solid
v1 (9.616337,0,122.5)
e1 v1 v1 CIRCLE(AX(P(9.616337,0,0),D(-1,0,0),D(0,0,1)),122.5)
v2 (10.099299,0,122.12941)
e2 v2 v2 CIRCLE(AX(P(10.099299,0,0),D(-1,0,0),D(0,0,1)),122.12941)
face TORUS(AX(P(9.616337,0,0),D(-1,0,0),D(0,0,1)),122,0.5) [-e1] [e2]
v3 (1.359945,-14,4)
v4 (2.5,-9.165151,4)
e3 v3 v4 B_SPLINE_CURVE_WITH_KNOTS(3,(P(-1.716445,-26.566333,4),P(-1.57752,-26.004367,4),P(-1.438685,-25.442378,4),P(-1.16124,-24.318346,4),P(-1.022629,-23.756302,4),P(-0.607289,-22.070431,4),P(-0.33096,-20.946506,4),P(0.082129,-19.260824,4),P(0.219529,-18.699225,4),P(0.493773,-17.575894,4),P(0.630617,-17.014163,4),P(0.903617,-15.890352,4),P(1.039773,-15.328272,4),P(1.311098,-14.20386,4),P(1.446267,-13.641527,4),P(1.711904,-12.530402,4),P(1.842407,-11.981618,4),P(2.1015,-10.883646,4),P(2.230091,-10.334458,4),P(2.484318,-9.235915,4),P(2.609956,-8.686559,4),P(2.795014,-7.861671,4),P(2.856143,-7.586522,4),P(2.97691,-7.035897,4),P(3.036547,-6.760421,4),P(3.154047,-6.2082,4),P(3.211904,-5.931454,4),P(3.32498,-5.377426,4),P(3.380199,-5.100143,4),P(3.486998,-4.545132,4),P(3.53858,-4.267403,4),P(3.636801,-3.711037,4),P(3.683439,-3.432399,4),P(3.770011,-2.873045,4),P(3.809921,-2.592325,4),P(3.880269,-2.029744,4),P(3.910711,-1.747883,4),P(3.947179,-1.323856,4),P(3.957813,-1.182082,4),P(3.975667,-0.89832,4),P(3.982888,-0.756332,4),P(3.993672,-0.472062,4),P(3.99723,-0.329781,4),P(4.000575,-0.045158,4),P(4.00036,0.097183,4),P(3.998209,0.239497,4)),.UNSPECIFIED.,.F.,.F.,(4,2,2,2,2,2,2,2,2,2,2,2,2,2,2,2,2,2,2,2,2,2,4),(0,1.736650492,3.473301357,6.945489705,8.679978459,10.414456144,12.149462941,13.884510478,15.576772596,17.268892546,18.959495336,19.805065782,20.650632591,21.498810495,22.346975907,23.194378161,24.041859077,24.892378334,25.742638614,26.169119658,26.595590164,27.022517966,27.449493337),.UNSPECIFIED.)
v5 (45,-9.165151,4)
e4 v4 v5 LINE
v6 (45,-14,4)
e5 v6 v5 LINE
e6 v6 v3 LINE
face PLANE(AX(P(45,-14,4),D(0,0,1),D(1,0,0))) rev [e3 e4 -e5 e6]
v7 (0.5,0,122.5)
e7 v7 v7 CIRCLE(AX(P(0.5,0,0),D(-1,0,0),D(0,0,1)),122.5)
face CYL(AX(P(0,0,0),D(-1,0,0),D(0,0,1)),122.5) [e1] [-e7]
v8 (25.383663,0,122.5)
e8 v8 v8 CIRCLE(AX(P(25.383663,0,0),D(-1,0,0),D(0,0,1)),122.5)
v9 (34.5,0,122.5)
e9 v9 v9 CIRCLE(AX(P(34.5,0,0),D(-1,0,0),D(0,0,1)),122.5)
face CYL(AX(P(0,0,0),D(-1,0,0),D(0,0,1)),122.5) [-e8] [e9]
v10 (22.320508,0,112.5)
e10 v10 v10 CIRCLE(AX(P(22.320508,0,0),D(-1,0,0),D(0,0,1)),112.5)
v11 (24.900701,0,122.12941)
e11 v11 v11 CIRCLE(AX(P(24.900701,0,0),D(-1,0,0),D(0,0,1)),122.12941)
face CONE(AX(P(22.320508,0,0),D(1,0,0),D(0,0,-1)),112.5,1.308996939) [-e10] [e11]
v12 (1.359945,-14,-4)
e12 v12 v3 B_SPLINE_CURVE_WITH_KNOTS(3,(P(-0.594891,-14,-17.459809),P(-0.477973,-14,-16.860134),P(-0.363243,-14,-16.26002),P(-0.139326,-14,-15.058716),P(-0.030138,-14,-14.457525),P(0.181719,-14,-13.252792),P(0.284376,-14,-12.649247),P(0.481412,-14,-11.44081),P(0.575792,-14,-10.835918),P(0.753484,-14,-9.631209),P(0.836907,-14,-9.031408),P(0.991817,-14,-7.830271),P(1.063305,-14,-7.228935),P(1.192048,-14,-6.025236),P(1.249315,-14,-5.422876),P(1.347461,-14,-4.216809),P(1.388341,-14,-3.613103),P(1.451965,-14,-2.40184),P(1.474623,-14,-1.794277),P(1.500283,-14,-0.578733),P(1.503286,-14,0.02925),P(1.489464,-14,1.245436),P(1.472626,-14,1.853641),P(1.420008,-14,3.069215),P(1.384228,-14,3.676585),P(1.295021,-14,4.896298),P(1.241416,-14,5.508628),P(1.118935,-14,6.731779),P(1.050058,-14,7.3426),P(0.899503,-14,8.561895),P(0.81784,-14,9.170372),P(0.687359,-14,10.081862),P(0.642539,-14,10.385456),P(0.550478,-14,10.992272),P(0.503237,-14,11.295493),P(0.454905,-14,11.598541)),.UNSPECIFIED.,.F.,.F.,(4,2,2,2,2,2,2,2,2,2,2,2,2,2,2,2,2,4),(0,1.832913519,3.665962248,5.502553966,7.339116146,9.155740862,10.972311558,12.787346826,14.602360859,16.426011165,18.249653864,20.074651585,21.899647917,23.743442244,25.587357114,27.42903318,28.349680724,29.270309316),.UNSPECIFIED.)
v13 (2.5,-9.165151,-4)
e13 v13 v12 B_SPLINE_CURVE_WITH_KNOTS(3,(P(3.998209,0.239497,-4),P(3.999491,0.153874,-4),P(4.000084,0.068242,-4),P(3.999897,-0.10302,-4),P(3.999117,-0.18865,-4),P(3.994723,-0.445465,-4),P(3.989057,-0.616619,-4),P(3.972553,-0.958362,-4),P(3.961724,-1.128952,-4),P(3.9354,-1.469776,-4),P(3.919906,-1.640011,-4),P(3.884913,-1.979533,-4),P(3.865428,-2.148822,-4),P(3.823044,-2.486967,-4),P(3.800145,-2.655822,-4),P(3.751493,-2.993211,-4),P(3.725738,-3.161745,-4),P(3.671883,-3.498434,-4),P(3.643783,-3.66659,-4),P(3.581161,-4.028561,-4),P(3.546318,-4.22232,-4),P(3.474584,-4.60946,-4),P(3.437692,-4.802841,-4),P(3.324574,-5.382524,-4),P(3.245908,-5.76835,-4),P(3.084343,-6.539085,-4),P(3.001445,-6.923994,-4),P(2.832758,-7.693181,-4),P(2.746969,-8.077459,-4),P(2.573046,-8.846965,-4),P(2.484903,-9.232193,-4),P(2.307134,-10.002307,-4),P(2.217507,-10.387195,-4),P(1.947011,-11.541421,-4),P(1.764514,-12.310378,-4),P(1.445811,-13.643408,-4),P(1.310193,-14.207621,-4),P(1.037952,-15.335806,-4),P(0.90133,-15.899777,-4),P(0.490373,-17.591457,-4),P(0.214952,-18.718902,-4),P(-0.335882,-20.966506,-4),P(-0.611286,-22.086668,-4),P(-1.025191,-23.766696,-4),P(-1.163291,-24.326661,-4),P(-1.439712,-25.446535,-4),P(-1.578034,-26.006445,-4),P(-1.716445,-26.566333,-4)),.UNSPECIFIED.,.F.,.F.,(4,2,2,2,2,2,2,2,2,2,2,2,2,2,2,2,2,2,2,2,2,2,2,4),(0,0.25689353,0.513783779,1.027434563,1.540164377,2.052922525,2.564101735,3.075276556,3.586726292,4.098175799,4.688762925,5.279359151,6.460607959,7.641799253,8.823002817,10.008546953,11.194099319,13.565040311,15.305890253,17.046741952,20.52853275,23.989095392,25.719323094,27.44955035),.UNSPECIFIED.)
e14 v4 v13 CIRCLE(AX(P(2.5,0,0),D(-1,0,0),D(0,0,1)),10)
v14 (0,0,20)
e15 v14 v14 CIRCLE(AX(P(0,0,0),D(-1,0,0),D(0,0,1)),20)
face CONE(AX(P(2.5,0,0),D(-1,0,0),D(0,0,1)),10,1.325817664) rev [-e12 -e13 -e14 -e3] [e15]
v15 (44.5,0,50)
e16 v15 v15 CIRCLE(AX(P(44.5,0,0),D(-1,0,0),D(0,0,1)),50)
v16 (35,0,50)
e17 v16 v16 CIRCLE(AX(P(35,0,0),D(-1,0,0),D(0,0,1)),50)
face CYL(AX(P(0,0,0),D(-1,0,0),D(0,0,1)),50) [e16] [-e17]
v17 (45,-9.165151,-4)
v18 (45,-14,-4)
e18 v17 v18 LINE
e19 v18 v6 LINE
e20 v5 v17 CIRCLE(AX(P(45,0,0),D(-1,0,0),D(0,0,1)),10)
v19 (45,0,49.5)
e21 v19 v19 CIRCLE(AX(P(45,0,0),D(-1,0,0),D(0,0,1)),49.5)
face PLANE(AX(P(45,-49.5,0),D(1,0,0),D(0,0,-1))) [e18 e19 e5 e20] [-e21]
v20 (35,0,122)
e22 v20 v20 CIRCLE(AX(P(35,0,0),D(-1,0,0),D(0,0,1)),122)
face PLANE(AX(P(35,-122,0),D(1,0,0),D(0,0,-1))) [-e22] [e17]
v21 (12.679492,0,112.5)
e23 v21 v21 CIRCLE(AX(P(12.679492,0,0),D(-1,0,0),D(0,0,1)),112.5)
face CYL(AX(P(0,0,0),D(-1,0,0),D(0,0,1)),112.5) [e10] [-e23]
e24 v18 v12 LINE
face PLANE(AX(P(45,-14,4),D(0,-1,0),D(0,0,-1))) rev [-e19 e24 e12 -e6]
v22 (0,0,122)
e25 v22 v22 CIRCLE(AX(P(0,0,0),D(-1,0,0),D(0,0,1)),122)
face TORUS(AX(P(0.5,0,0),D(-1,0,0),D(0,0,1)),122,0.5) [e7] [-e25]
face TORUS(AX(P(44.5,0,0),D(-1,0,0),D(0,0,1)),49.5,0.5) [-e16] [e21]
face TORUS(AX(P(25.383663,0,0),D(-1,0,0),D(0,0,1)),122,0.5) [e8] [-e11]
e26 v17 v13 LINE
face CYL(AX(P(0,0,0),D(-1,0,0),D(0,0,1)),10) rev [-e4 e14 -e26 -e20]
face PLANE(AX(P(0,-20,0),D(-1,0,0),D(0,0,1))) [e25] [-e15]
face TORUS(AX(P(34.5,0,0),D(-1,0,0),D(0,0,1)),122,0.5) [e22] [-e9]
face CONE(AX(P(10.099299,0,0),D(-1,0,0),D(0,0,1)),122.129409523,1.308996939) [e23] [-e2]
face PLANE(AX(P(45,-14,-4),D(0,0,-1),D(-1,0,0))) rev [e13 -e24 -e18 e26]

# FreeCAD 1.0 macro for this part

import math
import FreeCAD as App
import Part
import Sketcher

V = App.Vector
Q = App.Units.Quantity


def add_polygon(sketch, points):
    """Adds a closed chain of lines whose ends are joined by coincident constraints."""
    first, n = sketch.GeometryCount, len(points)
    for a, b in zip(points, points[1:] + points[:1]):
        sketch.addGeometry(Part.LineSegment(App.Vector(*a, 0), App.Vector(*b, 0)), False)
    for i in range(n):
        sketch.addConstraint(Sketcher.Constraint("Coincident", first + i, 2, first + (i + 1) % n, 1))

doc = App.newDocument("Part")
body = doc.addObject("PartDesign::Body", "Body")

# Sketch on XY plane
sketch1 = doc.addObject("Sketcher::SketchObject", "Sketch")
body.addObject(sketch1)
sketch1.AttachmentSupport = (doc.XY_Plane, [""])
sketch1.MapMode = "FlatFace"
sketch1.addGeometry([
    Part.LineSegment(V(0, -20, 0), V(0, -122, 0)),  # 0
    Part.ArcOfCircle(Part.Circle(V(0.5, -122, 0), V(0, 0, 1), 0.5), math.radians(180), math.radians(270)),  # 1
    Part.LineSegment(V(0.5, -122.5, 0), V(9.62, -122.5, 0)),  # 2
    Part.ArcOfCircle(Part.Circle(V(9.62, -122, 0), V(0, 0, 1), 0.5), math.radians(-90), math.radians(-15)),  # 3
    Part.LineSegment(V(10.1, -122.13, 0), V(12.68, -112.5, 0)),  # 4
    Part.LineSegment(V(12.68, -112.5, 0), V(22.32, -112.5, 0)),  # 5
    Part.LineSegment(V(22.32, -112.5, 0), V(24.9, -122.13, 0)),  # 6
    Part.ArcOfCircle(Part.Circle(V(25.38, -122, 0), V(0, 0, 1), 0.5), math.radians(-165), math.radians(-90)),  # 7
    Part.LineSegment(V(25.38, -122.5, 0), V(34.5, -122.5, 0)),  # 8
    Part.ArcOfCircle(Part.Circle(V(34.5, -122, 0), V(0, 0, 1), 0.5), math.radians(-90), math.radians(0)),  # 9
    Part.LineSegment(V(35, -122, 0), V(35, -50, 0)),  # 10
    Part.LineSegment(V(35, -50, 0), V(44.5, -50, 0)),  # 11
    Part.ArcOfCircle(Part.Circle(V(44.5, -49.5, 0), V(0, 0, 1), 0.5), math.radians(-90), math.radians(0)),  # 12
    Part.LineSegment(V(45, -49.5, 0), V(45, -10, 0)),  # 13
    Part.LineSegment(V(45, -10, 0), V(2.5, -10, 0)),  # 14
    Part.LineSegment(V(2.5, -10, 0), V(0, -20, 0)),  # 15
], False)
sketch1.addConstraint([
    Sketcher.Constraint("Tangent", 0, 2, 1, 1),
    Sketcher.Constraint("Tangent", 1, 2, 2, 1),
    Sketcher.Constraint("Tangent", 2, 2, 3, 1),
    Sketcher.Constraint("Tangent", 3, 2, 4, 1),
    Sketcher.Constraint("Coincident", 4, 2, 5, 1),
    Sketcher.Constraint("Coincident", 5, 2, 6, 1),
    Sketcher.Constraint("Tangent", 6, 2, 7, 1),
    Sketcher.Constraint("Tangent", 7, 2, 8, 1),
    Sketcher.Constraint("Tangent", 8, 2, 9, 1),
    Sketcher.Constraint("Tangent", 9, 2, 10, 1),
    Sketcher.Constraint("Coincident", 10, 2, 11, 1),
    Sketcher.Constraint("Tangent", 11, 2, 12, 1),
    Sketcher.Constraint("Tangent", 12, 2, 13, 1),
    Sketcher.Constraint("Coincident", 13, 2, 14, 1),
    Sketcher.Constraint("Coincident", 14, 2, 15, 1),
    Sketcher.Constraint("Coincident", 15, 2, 0, 1),
    Sketcher.Constraint("Vertical", 0),
    Sketcher.Constraint("Horizontal", 2),
    Sketcher.Constraint("Horizontal", 5),
    Sketcher.Constraint("Horizontal", 8),
    Sketcher.Constraint("Vertical", 10),
    Sketcher.Constraint("Horizontal", 11),
    Sketcher.Constraint("Vertical", 13),
    Sketcher.Constraint("Horizontal", 14),
    Sketcher.Constraint("Equal", 1, 3),
    Sketcher.Constraint("Equal", 3, 7),
    Sketcher.Constraint("Equal", 7, 9),
    Sketcher.Constraint("Equal", 9, 12),
    Sketcher.Constraint("PointOnObject", 0, 2, -2),
    Sketcher.Constraint("Horizontal", 3, 3, 7, 3),
    Sketcher.Constraint("Horizontal", 3, 2, 6, 2),
    Sketcher.Constraint("Equal", 2, 8),
    Sketcher.Constraint("Radius", 1, Q("0.5 mm")),
    Sketcher.Constraint("DistanceY", 0, 2, 0, 1, Q("102 mm")),
    Sketcher.Constraint("DistanceY", 10, 1, 10, 2, Q("72 mm")),
    Sketcher.Constraint("Angle", 4, Q("75 deg")),
    Sketcher.Constraint("DistanceX", 11, 1, 11, 2, Q("9.5 mm")),
    Sketcher.Constraint("DistanceX", 14, 2, 14, 1, Q("42.5 mm")),
    Sketcher.Constraint("DistanceY", 13, 1, 13, 2, Q("39.5 mm")),
    Sketcher.Constraint("DistanceY", 1, 3, -1, 1, Q("122 mm")),
    Sketcher.Constraint("DistanceX", -1, 1, 9, 2, Q("35 mm")),
    Sketcher.Constraint("DistanceY", 2, 2, 4, 2, Q("10 mm")),
    Sketcher.Constraint("DistanceX", -1, 1, 3, 2, Q("10.099299 mm")),
])
revolution = doc.addObject("PartDesign::Revolution", "Revolution")
body.addObject(revolution)
revolution.Profile = sketch1
revolution.ReferenceAxis = (sketch1, ["H_Axis"])
revolution.Angle = 360

# Sketch on YZ plane
sketch2 = doc.addObject("Sketcher::SketchObject", "Sketch001")
body.addObject(sketch2)
sketch2.AttachmentSupport = (doc.YZ_Plane, [""])
sketch2.MapMode = "FlatFace"
add_polygon(sketch2, [(-6, -4), (-14, -4), (-14, 4), (-6, 4)])  # lines 0-3
sketch2.addConstraint([
    Sketcher.Constraint("Horizontal", 0),
    Sketcher.Constraint("Vertical", 1),
    Sketcher.Constraint("Horizontal", 2),
    Sketcher.Constraint("Vertical", 3),
    Sketcher.Constraint("Equal", 2, 1),
    Sketcher.Constraint("DistanceX", 0, 2, 0, 1, Q("8 mm")),
    Sketcher.Constraint("DistanceX", 0, 2, -1, 1, Q("14 mm")),
    Sketcher.Constraint("DistanceY", 0, 2, -1, 1, Q("4 mm")),
])
pocket1 = doc.addObject("PartDesign::Pocket", "Pocket")
body.addObject(pocket1)
pocket1.Profile = sketch2
pocket1.Type = "ThroughAll"
pocket1.Reversed = True

doc.recompute()
